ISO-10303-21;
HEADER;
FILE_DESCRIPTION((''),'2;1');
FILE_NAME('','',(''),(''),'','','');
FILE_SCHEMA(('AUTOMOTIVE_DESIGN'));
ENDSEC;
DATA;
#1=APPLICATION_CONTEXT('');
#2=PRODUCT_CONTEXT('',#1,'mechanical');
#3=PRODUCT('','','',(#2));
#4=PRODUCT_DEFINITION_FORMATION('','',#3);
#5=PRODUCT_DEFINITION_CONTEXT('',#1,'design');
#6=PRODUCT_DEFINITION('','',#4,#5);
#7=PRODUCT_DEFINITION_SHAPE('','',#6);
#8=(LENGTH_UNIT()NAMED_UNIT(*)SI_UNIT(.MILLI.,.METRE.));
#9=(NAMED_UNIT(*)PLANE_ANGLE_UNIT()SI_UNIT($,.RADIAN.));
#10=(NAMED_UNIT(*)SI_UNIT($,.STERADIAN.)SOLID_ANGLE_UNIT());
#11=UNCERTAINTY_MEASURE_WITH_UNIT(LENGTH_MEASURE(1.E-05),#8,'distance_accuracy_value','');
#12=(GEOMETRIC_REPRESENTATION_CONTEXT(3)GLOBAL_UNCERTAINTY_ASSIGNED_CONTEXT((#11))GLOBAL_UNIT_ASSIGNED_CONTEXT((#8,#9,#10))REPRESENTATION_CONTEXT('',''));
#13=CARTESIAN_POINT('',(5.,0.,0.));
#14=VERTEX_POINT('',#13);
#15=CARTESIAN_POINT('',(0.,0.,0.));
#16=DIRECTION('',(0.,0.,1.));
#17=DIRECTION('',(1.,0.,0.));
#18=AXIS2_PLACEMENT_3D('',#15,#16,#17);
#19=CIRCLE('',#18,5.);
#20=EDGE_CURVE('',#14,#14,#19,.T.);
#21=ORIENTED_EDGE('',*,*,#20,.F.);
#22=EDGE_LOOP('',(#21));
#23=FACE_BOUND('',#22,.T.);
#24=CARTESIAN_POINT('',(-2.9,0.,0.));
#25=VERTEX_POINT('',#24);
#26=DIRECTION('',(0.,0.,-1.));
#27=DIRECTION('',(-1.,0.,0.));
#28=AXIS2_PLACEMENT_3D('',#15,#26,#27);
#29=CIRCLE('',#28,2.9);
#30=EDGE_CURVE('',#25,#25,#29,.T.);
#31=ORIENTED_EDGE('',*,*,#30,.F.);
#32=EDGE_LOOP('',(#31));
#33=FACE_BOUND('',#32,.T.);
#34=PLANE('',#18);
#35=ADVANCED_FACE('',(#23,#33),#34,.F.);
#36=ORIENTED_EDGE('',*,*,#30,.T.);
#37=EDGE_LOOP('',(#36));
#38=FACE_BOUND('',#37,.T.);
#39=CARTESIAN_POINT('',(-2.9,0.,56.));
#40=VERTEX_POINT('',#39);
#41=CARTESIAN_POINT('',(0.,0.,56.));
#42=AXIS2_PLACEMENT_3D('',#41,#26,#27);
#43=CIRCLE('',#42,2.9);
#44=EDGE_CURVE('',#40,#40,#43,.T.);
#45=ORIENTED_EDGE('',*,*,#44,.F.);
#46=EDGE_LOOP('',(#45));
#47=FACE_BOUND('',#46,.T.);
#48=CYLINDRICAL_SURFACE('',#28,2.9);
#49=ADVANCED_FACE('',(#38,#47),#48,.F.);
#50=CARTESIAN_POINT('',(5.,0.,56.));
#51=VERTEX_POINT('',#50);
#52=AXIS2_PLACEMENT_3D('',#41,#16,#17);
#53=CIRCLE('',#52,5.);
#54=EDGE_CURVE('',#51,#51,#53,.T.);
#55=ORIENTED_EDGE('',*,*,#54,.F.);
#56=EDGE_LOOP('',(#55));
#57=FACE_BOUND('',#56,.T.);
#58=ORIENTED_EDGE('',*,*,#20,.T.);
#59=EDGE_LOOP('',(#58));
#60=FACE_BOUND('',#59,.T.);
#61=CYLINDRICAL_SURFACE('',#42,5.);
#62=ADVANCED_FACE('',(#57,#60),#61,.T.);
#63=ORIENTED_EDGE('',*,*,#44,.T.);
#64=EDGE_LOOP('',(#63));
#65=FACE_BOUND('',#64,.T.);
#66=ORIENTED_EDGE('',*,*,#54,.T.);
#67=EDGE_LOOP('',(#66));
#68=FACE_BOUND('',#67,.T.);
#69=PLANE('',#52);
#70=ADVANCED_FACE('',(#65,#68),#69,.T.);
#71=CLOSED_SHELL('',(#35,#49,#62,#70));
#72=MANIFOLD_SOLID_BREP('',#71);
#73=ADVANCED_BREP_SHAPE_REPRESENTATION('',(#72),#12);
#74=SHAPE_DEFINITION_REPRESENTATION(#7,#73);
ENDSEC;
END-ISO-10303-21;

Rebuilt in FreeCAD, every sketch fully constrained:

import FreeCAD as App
import Part
import Sketcher
from FreeCAD import Vector

doc = App.newDocument("Part")
params = doc.addObject("Spreadsheet::Sheet", "Params")
for row, (alias, value) in enumerate([
    ("sketch1_diameter", "10 mm"),
    ("pad1_length", "56 mm"),
    ("sketch2_diameter", "5.8 mm"),
    ("hole_diameter", "5.8 mm"),
], start=1):
    params.set(f"A{row}", alias)
    params.set(f"B{row}", "=" + value)
    params.setAlias(f"B{row}", alias)

body = doc.addObject("PartDesign::Body", "Body")

sketch1 = body.newObject("Sketcher::SketchObject", "Sketch")
sketch1.AttachmentSupport = (doc.getObject("XY_Plane"), [""])
sketch1.MapMode = "FlatFace"
sketch1.addGeometry(Part.Circle(Vector(0, 0, 0), Vector(0, 0, 1), 5), False)
sketch1.addConstraint(Sketcher.Constraint("Coincident", 0, 3, -1, 1))
sketch1.addConstraint(Sketcher.Constraint("Diameter", 0, 10.0))
sketch1.setExpression("Constraints[1]", "Params.sketch1_diameter")
pad1 = body.newObject("PartDesign::Pad", "Pad")
pad1.Profile = sketch1
pad1.setExpression("Length", "Params.pad1_length")

sketch2 = body.newObject("Sketcher::SketchObject", "Sketch001")
sketch2.AttachmentSupport = (doc.getObject("XY_Plane"), [""])
sketch2.MapMode = "FlatFace"
sketch2.addGeometry(Part.Circle(Vector(0, 0, 0), Vector(0, 0, 1), 2.9), False)
sketch2.addConstraint(Sketcher.Constraint("Coincident", 0, 3, -1, 1))
sketch2.addConstraint(Sketcher.Constraint("Diameter", 0, 5.8))
sketch2.setExpression("Constraints[1]", "Params.sketch2_diameter")
doc.recompute()
hole = body.newObject("PartDesign::Hole", "Hole")
hole.Profile = sketch2
hole.ThreadType = "None"
hole.setExpression("Diameter", "Params.hole_diameter")
hole.DepthType = "ThroughAll"
hole.Reversed = True

doc.recompute()
